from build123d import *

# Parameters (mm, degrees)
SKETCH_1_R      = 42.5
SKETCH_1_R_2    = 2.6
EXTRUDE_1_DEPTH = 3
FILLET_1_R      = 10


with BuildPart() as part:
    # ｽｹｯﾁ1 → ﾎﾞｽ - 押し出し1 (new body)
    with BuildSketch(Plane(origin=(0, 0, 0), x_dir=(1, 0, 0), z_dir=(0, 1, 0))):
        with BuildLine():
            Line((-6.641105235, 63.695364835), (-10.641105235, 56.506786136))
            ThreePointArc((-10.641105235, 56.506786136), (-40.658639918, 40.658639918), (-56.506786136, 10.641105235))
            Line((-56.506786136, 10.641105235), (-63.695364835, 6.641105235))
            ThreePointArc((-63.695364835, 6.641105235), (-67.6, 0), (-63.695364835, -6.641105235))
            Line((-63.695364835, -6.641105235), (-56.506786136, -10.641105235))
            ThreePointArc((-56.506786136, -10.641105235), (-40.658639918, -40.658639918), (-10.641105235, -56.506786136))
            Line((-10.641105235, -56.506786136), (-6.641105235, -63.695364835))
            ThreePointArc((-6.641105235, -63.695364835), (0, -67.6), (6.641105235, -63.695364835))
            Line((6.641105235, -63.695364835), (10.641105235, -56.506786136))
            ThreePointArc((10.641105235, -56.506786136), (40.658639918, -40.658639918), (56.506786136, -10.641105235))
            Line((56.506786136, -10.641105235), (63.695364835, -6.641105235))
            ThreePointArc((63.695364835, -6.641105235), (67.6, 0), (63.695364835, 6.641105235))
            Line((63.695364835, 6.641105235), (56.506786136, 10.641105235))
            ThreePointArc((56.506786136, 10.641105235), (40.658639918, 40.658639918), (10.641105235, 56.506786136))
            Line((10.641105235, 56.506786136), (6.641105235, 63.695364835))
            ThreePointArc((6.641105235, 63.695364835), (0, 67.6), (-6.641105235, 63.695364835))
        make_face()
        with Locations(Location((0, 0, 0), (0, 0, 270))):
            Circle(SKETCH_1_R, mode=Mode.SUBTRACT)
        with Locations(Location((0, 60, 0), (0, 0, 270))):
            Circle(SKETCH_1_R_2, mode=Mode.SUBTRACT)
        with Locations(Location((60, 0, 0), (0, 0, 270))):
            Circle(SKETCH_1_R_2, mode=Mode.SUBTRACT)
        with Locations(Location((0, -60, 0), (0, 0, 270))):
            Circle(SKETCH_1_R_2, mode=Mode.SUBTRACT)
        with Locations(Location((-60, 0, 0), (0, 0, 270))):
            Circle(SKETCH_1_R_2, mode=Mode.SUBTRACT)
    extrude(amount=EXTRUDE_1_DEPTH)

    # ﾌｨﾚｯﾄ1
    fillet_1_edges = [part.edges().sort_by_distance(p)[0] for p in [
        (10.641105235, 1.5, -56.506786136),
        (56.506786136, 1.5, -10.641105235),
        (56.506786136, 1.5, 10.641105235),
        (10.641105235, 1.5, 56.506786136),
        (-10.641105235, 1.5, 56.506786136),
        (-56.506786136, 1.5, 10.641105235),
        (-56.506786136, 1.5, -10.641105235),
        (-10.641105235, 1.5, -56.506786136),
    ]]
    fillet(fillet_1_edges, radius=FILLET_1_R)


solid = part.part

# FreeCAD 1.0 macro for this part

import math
import FreeCAD as App
import Part
import Sketcher
Q = App.Units.Quantity


def edges_at(feature, points):
    """Names of the edges that pass closest to the given points."""
    edges = feature.Shape.Edges
    near = lambda p: min(range(len(edges)), key=lambda i: edges[i].distToShape(Part.Vertex(*p))[0])
    return sorted({f"Edge{near(p) + 1}" for p in points})

doc = App.newDocument("Part")
body = doc.addObject("PartDesign::Body", "Body")

# Sketch on XZ plane
sketch1 = body.newObject("Sketcher::SketchObject", "Sketch")
sketch1.AttachmentSupport = (doc.getObject("XZ_Plane"), [""])
sketch1.MapMode = "FlatFace"
sketch1.addGeometry([
    Part.LineSegment(App.Vector(-6.6, -63.7, 0), App.Vector(-10.6, -56.5, 0)),  # 0
    Part.ArcOfCircle(Part.Circle(App.Vector(0, 0, 0), App.Vector(0, 0, 1), 57.5), math.radians(-169), math.radians(-101)),  # 1
    Part.LineSegment(App.Vector(-56.5, -10.6, 0), App.Vector(-63.7, -6.6, 0)),  # 2
    Part.ArcOfCircle(Part.Circle(App.Vector(-60, 0, 0), App.Vector(0, 0, 1), 7.6), math.radians(119), math.radians(241)),  # 3
    Part.LineSegment(App.Vector(-63.7, 6.6, 0), App.Vector(-56.5, 10.6, 0)),  # 4
    Part.ArcOfCircle(Part.Circle(App.Vector(0, 0, 0), App.Vector(0, 0, 1), 57.5), math.radians(101), math.radians(169)),  # 5
    Part.LineSegment(App.Vector(-10.6, 56.5, 0), App.Vector(-6.6, 63.7, 0)),  # 6
    Part.ArcOfCircle(Part.Circle(App.Vector(0, 60, 0), App.Vector(0, 0, 1), 7.6), math.radians(29), math.radians(151)),  # 7
    Part.LineSegment(App.Vector(6.6, 63.7, 0), App.Vector(10.6, 56.5, 0)),  # 8
    Part.ArcOfCircle(Part.Circle(App.Vector(0, 0, 0), App.Vector(0, 0, 1), 57.5), math.radians(11), math.radians(79)),  # 9
    Part.LineSegment(App.Vector(56.5, 10.6, 0), App.Vector(63.7, 6.6, 0)),  # 10
    Part.ArcOfCircle(Part.Circle(App.Vector(60, 0, 0), App.Vector(0, 0, 1), 7.6), math.radians(-61), math.radians(61)),  # 11
    Part.LineSegment(App.Vector(63.7, -6.6, 0), App.Vector(56.5, -10.6, 0)),  # 12
    Part.ArcOfCircle(Part.Circle(App.Vector(0, 0, 0), App.Vector(0, 0, 1), 57.5), math.radians(-79), math.radians(-11)),  # 13
    Part.LineSegment(App.Vector(10.6, -56.5, 0), App.Vector(6.6, -63.7, 0)),  # 14
    Part.ArcOfCircle(Part.Circle(App.Vector(0, -60, 0), App.Vector(0, 0, 1), 7.6), math.radians(-151), math.radians(-29)),  # 15
    Part.Circle(App.Vector(0, 60, 0), App.Vector(0, 0, 1), 2.6),  # 16
    Part.Circle(App.Vector(-60, 0, 0), App.Vector(0, 0, 1), 2.6),  # 17
    Part.Circle(App.Vector(0, 0, 0), App.Vector(0, 0, 1), 42.5),  # 18
    Part.Circle(App.Vector(60, 0, 0), App.Vector(0, 0, 1), 2.6),  # 19
    Part.Circle(App.Vector(0, -60, 0), App.Vector(0, 0, 1), 2.6),  # 20
], False)
sketch1.addConstraint([
    Sketcher.Constraint("Coincident", 0, 2, 1, 2),
    Sketcher.Constraint("Coincident", 1, 1, 2, 1),
    Sketcher.Constraint("Tangent", 2, 2, 3, 2),
    Sketcher.Constraint("Tangent", 3, 1, 4, 1),
    Sketcher.Constraint("Coincident", 4, 2, 5, 2),
    Sketcher.Constraint("Coincident", 5, 1, 6, 1),
    Sketcher.Constraint("Tangent", 6, 2, 7, 2),
    Sketcher.Constraint("Tangent", 7, 1, 8, 1),
    Sketcher.Constraint("Coincident", 8, 2, 9, 2),
    Sketcher.Constraint("Coincident", 9, 1, 10, 1),
    Sketcher.Constraint("Tangent", 10, 2, 11, 2),
    Sketcher.Constraint("Tangent", 11, 1, 12, 1),
    Sketcher.Constraint("Coincident", 12, 2, 13, 2),
    Sketcher.Constraint("Coincident", 13, 1, 14, 1),
    Sketcher.Constraint("Tangent", 14, 2, 15, 2),
    Sketcher.Constraint("Tangent", 15, 1, 0, 1),
    Sketcher.Constraint("Coincident", 1, 3, -1, 1),
    Sketcher.Constraint("Coincident", 5, 3, -1, 1),
    Sketcher.Constraint("Coincident", 9, 3, -1, 1),
    Sketcher.Constraint("Coincident", 13, 3, -1, 1),
    Sketcher.Constraint("Coincident", 18, 3, -1, 1),
    Sketcher.Constraint("Coincident", 16, 3, 7, 3),
    Sketcher.Constraint("Coincident", 17, 3, 3, 3),
    Sketcher.Constraint("Coincident", 19, 3, 11, 3),
    Sketcher.Constraint("Coincident", 20, 3, 15, 3),
    Sketcher.Constraint("Equal", 1, 5),
    Sketcher.Constraint("Equal", 3, 7),
    Sketcher.Constraint("Equal", 5, 9),
    Sketcher.Constraint("Equal", 7, 11),
    Sketcher.Constraint("Equal", 9, 13),
    Sketcher.Constraint("Equal", 11, 15),
    Sketcher.Constraint("Equal", 16, 17),
    Sketcher.Constraint("Equal", 17, 19),
    Sketcher.Constraint("Equal", 19, 20),
    Sketcher.Constraint("Symmetric", 3, 3, 11, 3, -1, 1),
    Sketcher.Constraint("Symmetric", 7, 3, 15, 3, -1, 1),
    Sketcher.Constraint("Symmetric", 6, 2, 7, 1, -2),
    Sketcher.Constraint("Symmetric", 3, 1, 10, 2, -2),
    Sketcher.Constraint("Perpendicular", 0, 4),
    Sketcher.Constraint("Perpendicular", 2, 6),
    Sketcher.Constraint("Perpendicular", 4, 8),
    Sketcher.Constraint("Perpendicular", 8, 12),
    Sketcher.Constraint("Perpendicular", 10, 14),
    Sketcher.Constraint("Equal", 0, 2),
    Sketcher.Constraint("Diameter", 18, Q("85 mm")),
    Sketcher.Constraint("Diameter", 16, Q("5.2 mm")),
    Sketcher.Constraint("Radius", 1, Q("57.5 mm")),
    Sketcher.Constraint("Radius", 3, Q("7.6 mm")),
    Sketcher.Constraint("DistanceX", 3, 3, -1, 1, Q("60 mm")),
    Sketcher.Constraint("DistanceY", 1, 1, 2, 2, Q("4 mm")),
])
pad1 = body.newObject("PartDesign::Pad", "Pad")
pad1.Profile = sketch1
pad1.Length = 3
pad1.Reversed = True
doc.recompute()

fillet = body.newObject("PartDesign::Fillet", "Fillet")
fillet.Base = (pad1, edges_at(pad1, [
    (10.641, 1.5, -56.507),
    (56.507, 1.5, -10.641),
    (56.507, 1.5, 10.641),
    (10.641, 1.5, 56.507),
    (-10.641, 1.5, 56.507),
    (-56.507, 1.5, 10.641),
    (-56.507, 1.5, -10.641),
    (-10.641, 1.5, -56.507),
]))
fillet.Radius = 10

doc.recompute()
